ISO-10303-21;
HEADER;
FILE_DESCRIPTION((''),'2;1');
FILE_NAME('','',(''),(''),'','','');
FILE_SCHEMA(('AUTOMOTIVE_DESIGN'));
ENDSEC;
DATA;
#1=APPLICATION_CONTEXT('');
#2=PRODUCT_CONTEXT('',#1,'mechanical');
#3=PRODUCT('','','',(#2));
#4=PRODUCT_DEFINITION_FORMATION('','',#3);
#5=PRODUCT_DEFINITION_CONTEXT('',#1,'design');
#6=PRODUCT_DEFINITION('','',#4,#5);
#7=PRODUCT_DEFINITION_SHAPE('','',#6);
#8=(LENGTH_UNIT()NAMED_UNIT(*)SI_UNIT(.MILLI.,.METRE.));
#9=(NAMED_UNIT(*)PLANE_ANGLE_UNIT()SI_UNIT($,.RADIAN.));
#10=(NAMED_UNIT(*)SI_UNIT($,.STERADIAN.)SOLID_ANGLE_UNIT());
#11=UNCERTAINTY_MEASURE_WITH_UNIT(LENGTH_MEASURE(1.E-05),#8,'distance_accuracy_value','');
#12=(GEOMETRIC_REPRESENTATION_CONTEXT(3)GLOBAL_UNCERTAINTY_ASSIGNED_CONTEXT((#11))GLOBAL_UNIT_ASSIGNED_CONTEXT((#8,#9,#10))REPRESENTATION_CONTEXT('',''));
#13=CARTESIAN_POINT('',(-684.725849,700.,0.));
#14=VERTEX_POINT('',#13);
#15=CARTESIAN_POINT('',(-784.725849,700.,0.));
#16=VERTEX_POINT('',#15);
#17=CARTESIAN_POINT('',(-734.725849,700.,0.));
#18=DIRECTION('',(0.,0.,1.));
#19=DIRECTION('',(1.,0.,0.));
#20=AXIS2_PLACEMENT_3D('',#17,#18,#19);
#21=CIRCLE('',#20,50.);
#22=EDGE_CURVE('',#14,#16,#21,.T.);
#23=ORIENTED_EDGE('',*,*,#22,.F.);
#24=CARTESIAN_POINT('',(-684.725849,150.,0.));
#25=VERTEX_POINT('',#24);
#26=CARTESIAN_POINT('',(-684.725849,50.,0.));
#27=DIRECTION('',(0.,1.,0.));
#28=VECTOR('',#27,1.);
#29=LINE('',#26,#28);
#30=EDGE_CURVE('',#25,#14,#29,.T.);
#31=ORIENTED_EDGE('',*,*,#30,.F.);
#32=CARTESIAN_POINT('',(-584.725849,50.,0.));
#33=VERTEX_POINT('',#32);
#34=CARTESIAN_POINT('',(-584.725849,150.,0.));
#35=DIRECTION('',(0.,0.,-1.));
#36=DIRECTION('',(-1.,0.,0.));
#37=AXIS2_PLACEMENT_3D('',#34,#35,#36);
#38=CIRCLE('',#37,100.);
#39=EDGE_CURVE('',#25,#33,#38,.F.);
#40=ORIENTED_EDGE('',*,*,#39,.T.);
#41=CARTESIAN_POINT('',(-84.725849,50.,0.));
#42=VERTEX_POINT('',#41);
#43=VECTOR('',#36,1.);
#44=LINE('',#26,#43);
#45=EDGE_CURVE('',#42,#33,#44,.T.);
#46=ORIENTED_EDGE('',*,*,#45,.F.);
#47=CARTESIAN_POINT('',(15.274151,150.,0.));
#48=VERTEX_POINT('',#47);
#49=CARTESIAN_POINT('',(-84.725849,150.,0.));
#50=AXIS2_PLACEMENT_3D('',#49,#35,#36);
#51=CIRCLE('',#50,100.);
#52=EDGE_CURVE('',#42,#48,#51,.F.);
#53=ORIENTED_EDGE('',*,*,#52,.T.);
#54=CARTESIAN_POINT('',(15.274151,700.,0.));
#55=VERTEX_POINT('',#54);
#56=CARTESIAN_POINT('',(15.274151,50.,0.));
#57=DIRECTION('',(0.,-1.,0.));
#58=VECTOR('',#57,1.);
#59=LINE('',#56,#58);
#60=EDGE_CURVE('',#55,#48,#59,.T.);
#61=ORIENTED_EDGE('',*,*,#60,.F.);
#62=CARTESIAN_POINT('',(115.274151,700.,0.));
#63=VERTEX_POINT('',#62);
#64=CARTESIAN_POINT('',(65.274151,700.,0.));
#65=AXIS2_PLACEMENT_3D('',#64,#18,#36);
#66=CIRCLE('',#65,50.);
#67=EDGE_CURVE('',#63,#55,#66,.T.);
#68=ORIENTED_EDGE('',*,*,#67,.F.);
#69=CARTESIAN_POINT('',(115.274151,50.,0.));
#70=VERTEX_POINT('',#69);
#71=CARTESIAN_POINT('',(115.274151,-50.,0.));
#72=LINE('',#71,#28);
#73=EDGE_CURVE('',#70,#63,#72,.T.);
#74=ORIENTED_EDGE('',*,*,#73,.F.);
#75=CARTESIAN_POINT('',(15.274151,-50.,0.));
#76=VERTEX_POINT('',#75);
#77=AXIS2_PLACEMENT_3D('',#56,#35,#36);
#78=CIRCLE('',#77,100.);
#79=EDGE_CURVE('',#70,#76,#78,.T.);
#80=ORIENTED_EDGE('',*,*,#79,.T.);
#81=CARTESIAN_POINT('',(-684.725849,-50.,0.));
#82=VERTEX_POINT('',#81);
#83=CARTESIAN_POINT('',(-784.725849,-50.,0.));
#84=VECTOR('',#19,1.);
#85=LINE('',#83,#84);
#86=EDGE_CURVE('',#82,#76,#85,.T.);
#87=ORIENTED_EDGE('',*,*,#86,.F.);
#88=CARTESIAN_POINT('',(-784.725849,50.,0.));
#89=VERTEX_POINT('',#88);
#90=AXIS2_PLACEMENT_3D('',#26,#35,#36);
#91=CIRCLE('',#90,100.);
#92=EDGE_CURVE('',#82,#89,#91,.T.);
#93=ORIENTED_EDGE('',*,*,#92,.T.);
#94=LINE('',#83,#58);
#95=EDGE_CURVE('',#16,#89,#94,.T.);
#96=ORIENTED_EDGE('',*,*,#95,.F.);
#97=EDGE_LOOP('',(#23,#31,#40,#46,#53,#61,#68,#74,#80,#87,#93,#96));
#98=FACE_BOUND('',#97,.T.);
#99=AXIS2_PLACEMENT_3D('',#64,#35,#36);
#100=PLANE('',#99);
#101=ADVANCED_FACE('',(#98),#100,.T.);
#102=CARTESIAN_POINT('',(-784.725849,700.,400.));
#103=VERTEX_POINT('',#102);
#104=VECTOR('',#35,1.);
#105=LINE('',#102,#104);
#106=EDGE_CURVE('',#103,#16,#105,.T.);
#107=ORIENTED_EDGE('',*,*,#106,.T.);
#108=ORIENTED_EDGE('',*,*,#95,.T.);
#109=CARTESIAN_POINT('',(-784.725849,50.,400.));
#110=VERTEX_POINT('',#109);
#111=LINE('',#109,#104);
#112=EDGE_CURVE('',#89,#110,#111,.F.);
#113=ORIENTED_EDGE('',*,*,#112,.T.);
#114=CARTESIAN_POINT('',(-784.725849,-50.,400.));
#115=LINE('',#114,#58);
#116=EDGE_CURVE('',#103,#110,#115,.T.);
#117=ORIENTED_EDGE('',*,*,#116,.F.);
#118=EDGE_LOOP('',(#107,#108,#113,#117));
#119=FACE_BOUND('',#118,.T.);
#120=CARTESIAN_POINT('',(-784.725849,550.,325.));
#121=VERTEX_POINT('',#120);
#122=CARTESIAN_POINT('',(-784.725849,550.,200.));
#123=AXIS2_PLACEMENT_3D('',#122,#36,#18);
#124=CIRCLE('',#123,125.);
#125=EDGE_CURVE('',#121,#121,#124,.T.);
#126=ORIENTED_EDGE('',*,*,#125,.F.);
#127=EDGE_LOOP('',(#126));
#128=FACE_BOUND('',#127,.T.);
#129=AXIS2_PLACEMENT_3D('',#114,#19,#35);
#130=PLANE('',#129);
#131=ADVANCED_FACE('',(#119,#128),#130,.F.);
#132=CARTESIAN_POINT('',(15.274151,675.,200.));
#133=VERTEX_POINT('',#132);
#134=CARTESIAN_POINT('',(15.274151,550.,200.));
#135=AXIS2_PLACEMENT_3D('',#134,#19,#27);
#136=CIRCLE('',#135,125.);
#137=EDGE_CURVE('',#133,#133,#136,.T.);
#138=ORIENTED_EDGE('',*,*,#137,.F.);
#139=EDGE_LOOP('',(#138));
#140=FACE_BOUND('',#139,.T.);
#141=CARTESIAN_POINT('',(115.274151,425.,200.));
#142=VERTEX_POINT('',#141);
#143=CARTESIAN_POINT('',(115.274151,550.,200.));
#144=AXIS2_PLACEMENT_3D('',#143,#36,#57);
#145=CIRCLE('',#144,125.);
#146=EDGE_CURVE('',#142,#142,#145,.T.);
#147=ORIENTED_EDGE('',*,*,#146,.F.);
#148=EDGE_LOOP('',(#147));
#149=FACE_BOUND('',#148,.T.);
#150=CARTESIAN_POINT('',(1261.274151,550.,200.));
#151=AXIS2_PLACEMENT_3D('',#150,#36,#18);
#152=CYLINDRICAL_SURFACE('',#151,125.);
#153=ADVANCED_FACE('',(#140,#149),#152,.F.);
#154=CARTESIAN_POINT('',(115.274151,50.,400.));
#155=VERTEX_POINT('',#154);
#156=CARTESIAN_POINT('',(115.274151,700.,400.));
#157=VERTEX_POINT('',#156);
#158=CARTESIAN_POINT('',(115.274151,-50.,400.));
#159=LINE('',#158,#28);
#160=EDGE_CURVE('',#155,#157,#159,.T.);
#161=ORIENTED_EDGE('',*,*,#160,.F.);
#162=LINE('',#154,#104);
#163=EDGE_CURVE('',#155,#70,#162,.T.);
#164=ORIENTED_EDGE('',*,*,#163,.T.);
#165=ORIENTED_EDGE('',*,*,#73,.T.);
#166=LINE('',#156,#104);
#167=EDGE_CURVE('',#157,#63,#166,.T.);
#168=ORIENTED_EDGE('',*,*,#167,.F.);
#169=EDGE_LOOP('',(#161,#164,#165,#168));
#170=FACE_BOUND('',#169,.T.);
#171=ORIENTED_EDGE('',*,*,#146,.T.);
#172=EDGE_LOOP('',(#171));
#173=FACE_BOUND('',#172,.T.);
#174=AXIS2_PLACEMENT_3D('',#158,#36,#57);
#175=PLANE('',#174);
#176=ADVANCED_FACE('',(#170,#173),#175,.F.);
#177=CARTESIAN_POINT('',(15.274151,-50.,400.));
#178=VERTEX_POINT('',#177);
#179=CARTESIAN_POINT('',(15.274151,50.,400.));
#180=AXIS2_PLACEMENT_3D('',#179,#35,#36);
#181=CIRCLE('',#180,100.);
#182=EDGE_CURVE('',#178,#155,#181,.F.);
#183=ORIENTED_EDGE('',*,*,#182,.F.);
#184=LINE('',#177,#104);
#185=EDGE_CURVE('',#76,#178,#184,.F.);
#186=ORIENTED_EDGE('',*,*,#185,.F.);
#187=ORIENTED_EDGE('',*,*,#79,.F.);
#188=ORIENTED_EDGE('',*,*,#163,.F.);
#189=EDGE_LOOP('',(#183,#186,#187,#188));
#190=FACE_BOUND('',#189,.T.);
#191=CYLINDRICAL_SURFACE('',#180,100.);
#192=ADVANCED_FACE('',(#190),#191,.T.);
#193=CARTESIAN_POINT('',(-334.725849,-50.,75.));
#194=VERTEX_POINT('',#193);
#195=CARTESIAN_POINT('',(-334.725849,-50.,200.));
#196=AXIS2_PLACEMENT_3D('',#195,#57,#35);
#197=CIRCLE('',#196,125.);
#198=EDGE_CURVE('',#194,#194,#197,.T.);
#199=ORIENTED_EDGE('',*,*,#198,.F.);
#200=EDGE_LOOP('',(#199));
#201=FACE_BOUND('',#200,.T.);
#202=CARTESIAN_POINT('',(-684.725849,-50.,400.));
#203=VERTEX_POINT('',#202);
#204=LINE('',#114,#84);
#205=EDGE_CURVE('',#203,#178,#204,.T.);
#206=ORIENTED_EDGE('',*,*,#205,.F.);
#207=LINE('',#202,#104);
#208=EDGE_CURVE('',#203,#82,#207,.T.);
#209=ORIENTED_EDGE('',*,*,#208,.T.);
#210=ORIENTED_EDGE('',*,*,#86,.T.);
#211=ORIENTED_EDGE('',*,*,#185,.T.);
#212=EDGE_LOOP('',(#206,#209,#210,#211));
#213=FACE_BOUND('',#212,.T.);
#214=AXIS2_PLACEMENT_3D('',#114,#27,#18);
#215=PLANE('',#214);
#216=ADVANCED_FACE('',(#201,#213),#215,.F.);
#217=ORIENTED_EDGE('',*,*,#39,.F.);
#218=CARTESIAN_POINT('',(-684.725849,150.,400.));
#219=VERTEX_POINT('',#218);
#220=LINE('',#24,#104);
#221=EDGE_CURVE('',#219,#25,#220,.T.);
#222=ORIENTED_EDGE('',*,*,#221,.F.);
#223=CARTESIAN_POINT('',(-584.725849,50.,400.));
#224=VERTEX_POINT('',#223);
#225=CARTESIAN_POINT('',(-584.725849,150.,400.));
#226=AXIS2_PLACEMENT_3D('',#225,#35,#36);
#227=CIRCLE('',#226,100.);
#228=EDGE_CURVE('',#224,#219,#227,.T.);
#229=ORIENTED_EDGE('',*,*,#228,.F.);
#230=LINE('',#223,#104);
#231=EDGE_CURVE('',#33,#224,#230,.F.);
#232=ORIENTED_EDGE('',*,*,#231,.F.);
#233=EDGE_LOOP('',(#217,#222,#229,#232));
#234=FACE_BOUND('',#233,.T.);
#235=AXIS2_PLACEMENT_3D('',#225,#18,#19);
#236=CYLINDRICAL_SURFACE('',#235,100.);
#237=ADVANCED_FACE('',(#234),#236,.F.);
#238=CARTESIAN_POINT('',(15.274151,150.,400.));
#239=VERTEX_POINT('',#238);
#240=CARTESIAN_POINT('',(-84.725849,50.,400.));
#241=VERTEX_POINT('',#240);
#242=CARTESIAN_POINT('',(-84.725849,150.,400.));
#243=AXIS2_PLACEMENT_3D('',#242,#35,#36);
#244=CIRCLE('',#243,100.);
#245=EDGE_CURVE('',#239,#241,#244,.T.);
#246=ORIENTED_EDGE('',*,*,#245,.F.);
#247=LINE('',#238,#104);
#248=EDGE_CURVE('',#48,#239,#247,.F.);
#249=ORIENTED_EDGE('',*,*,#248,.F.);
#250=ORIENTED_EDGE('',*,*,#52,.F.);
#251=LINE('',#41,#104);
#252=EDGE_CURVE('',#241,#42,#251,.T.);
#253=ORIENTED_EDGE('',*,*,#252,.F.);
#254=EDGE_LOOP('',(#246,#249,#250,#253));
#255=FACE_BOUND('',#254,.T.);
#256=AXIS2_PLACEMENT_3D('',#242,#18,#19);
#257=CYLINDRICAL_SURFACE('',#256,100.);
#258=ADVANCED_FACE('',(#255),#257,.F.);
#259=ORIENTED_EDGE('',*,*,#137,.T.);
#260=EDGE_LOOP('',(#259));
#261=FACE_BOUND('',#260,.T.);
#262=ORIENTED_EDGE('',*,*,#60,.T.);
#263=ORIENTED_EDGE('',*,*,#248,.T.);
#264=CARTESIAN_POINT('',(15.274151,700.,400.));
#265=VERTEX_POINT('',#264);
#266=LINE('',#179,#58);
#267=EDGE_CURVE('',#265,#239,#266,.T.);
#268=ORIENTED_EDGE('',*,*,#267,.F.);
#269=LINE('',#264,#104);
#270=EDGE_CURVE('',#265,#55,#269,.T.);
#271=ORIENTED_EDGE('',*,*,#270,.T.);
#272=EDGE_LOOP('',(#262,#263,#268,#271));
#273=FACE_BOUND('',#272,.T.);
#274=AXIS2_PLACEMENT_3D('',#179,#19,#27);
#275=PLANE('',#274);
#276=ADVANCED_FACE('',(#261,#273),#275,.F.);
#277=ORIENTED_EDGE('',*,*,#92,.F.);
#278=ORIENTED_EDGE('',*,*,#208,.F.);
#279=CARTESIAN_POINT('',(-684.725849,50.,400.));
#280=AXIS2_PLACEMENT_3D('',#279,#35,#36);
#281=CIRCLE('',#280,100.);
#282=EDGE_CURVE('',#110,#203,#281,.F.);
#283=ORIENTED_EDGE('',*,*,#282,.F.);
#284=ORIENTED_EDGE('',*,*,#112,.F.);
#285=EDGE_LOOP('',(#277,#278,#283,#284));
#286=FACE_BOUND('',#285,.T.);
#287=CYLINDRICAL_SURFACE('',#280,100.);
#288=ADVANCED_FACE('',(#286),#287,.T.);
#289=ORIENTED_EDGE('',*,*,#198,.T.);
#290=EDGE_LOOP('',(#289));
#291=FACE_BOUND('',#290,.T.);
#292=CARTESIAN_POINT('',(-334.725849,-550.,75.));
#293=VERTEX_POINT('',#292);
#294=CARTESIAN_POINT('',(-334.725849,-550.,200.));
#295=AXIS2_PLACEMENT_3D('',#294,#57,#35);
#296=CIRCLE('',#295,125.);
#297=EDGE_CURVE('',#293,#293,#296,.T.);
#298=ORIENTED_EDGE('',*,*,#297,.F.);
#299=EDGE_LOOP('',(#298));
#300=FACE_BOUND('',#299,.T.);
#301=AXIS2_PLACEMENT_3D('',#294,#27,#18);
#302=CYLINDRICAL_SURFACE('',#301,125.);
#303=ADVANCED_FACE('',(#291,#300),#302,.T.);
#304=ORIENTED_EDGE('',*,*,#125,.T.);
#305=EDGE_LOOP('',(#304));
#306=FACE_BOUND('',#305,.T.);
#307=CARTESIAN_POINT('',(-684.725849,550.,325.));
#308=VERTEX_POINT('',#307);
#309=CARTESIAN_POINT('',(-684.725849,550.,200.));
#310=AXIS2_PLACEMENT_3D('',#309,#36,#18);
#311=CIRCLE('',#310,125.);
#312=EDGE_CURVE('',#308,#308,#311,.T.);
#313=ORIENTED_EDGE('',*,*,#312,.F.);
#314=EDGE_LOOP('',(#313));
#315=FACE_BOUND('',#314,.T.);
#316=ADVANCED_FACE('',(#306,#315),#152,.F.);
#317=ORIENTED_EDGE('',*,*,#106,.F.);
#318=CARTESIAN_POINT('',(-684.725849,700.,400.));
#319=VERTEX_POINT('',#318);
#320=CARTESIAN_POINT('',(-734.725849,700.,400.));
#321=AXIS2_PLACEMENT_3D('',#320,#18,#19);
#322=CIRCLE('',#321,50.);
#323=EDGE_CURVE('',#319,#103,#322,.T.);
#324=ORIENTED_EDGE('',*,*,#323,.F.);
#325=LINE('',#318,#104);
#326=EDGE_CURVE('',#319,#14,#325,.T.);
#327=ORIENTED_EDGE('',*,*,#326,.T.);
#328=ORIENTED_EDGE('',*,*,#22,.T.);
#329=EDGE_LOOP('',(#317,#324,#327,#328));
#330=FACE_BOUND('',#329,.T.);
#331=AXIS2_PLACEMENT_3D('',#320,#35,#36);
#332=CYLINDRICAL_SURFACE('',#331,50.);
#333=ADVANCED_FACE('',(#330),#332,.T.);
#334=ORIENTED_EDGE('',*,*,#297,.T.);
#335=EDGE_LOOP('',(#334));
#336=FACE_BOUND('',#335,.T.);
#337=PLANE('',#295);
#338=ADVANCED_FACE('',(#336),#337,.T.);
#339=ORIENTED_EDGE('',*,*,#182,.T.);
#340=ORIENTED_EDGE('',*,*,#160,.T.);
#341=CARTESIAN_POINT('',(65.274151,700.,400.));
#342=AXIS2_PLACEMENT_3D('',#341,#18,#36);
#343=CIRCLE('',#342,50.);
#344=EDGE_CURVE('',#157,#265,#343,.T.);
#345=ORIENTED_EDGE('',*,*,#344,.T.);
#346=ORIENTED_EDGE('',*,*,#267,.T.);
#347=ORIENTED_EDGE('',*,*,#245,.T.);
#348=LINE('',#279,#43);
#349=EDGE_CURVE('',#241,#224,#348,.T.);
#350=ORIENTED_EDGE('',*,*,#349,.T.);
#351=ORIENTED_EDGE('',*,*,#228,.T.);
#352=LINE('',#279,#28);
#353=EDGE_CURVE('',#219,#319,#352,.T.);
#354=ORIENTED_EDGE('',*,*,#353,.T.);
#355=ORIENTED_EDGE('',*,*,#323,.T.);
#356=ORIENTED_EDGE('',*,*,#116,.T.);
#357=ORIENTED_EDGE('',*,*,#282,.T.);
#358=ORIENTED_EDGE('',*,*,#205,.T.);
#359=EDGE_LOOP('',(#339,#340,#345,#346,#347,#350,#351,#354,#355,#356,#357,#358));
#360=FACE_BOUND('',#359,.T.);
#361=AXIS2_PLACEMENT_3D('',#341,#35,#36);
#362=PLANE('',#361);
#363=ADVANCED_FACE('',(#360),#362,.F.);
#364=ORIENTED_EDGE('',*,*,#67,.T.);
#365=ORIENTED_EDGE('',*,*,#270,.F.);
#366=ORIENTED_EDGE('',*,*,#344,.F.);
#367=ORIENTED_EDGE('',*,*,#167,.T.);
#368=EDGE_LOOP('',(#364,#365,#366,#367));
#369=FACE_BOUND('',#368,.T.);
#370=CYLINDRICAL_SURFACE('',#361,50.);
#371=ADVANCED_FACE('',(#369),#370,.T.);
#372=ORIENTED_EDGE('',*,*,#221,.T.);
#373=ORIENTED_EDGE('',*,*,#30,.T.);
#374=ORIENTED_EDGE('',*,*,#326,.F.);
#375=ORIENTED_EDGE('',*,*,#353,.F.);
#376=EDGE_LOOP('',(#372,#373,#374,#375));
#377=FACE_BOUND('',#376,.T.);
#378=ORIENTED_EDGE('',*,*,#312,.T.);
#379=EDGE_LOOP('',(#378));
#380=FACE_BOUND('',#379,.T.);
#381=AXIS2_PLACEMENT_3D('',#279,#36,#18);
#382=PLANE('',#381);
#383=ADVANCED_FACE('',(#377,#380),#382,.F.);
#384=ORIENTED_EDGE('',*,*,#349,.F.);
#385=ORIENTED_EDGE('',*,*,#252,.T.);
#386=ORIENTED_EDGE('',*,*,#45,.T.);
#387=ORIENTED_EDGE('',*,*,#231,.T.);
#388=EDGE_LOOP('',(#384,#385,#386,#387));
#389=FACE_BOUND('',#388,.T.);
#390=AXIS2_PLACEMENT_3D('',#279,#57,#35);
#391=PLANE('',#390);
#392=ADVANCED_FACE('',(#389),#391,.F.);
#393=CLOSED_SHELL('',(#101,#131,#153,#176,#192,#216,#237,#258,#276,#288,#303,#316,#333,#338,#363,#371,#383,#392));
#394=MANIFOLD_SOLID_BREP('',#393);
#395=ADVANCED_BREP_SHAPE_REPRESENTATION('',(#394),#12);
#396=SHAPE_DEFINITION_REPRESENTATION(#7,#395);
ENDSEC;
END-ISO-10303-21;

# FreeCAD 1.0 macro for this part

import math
import FreeCAD as App
import Part
import Sketcher
from FreeCAD import Vector


def edges_at(feature, points):
    """Names of the edges that pass closest to the given points."""
    edges = feature.Shape.Edges
    near = lambda p: min(range(len(edges)), key=lambda i: edges[i].distToShape(Part.Vertex(*p))[0])
    return sorted({f"Edge{near(p) + 1}" for p in points})

doc = App.newDocument("Part")
body = doc.addObject("PartDesign::Body", "Body")

# Sketch on XY plane
sketch1 = body.newObject("Sketcher::SketchObject", "Sketch")
sketch1.AttachmentSupport = (doc.getObject("XY_Plane"), [""])
sketch1.MapMode = "FlatFace"
sketch1.addGeometry(Part.LineSegment(Vector(15, 700, 0), Vector(15, 50, 0)), False)
sketch1.addGeometry(Part.LineSegment(Vector(15, 50, 0), Vector(-685, 50, 0)), False)
sketch1.addGeometry(Part.LineSegment(Vector(-685, 50, 0), Vector(-685, 700, 0)), False)
sketch1.addGeometry(Part.ArcOfCircle(Part.Circle(Vector(-735, 700, 0), Vector(0, 0, 1), 50), math.radians(0), math.radians(180)), False)
sketch1.addGeometry(Part.LineSegment(Vector(-785, 700, 0), Vector(-785, -50, 0)), False)
sketch1.addGeometry(Part.LineSegment(Vector(-785, -50, 0), Vector(115, -50, 0)), False)
sketch1.addGeometry(Part.LineSegment(Vector(115, -50, 0), Vector(115, 700, 0)), False)
sketch1.addGeometry(Part.ArcOfCircle(Part.Circle(Vector(65, 700, 0), Vector(0, 0, 1), 50), math.radians(0), math.radians(180)), False)
sketch1.addConstraint(Sketcher.Constraint("Coincident", 0, 2, 1, 1))
sketch1.addConstraint(Sketcher.Constraint("Coincident", 1, 2, 2, 1))
sketch1.addConstraint(Sketcher.Constraint("Tangent", 2, 2, 3, 1))
sketch1.addConstraint(Sketcher.Constraint("Tangent", 3, 2, 4, 1))
sketch1.addConstraint(Sketcher.Constraint("Coincident", 4, 2, 5, 1))
sketch1.addConstraint(Sketcher.Constraint("Coincident", 5, 2, 6, 1))
sketch1.addConstraint(Sketcher.Constraint("Tangent", 6, 2, 7, 1))
sketch1.addConstraint(Sketcher.Constraint("Tangent", 7, 2, 0, 1))
sketch1.addConstraint(Sketcher.Constraint("Vertical", 0))
sketch1.addConstraint(Sketcher.Constraint("Horizontal", 1))
sketch1.addConstraint(Sketcher.Constraint("Vertical", 2))
sketch1.addConstraint(Sketcher.Constraint("Vertical", 4))
sketch1.addConstraint(Sketcher.Constraint("Horizontal", 5))
sketch1.addConstraint(Sketcher.Constraint("Vertical", 6))
sketch1.addConstraint(Sketcher.Constraint("Equal", 3, 7))
sketch1.addConstraint(Sketcher.Constraint("Horizontal", 3, 3, 7, 3))
sketch1.addConstraint(Sketcher.Constraint("Radius", 3, 50.0))
sketch1.addConstraint(Sketcher.Constraint("DistanceX", 1, 2, 1, 1, 700.0))
sketch1.addConstraint(Sketcher.Constraint("DistanceY", 0, 2, 0, 1, 650.0))
sketch1.addConstraint(Sketcher.Constraint("DistanceY", 4, 2, 4, 1, 750.0))
sketch1.addConstraint(Sketcher.Constraint("DistanceY", -1, 1, 3, 3, 700.0))
sketch1.addConstraint(Sketcher.Constraint("DistanceX", 3, 3, -1, 1, 734.725849))
pad1 = body.newObject("PartDesign::Pad", "Pad")
pad1.Profile = sketch1
pad1.Length = 400

# Sketch on XZ plane
sketch2 = body.newObject("Sketcher::SketchObject", "Sketch001")
sketch2.AttachmentSupport = (doc.getObject("XZ_Plane"), [""])
sketch2.MapMode = "FlatFace"
sketch2.AttachmentOffset = App.Placement(Vector(0, 0, 50), App.Rotation())
sketch2.addGeometry(Part.Circle(Vector(-335, 200, 0), Vector(0, 0, 1), 125), False)
sketch2.addConstraint(Sketcher.Constraint("Diameter", 0, 250.0))
sketch2.addConstraint(Sketcher.Constraint("DistanceY", -1, 1, 0, 3, 200.0))
sketch2.addConstraint(Sketcher.Constraint("DistanceX", 0, 3, -1, 1, 334.725849))
pad2 = body.newObject("PartDesign::Pad", "Pad001")
pad2.Profile = sketch2
pad2.Length = 500
doc.recompute()

fillet = body.newObject("PartDesign::Fillet", "Fillet")
fillet.Base = (pad2, edges_at(pad2, [
    (15.274, 50, 200),
    (115.274, -50, 200),
    (-784.726, -50, 200),
    (-684.726, 50, 200),
]))
fillet.Radius = 100

# Sketch on YZ plane
sketch3 = body.newObject("Sketcher::SketchObject", "Sketch002")
sketch3.AttachmentSupport = (doc.getObject("YZ_Plane"), [""])
sketch3.MapMode = "FlatFace"
sketch3.AttachmentOffset = App.Placement(Vector(0, 0, -784.725849), App.Rotation())
sketch3.addGeometry(Part.Circle(Vector(550, 200, 0), Vector(0, 0, 1), 125), False)
sketch3.addConstraint(Sketcher.Constraint("Diameter", 0, 250.0))
sketch3.addConstraint(Sketcher.Constraint("DistanceX", -1, 1, 0, 3, 550.0))
sketch3.addConstraint(Sketcher.Constraint("DistanceY", -1, 1, 0, 3, 200.0))
pocket1 = body.newObject("PartDesign::Pocket", "Pocket")
pocket1.Profile = sketch3
pocket1.Length = 2046
pocket1.Reversed = True

doc.recompute()
